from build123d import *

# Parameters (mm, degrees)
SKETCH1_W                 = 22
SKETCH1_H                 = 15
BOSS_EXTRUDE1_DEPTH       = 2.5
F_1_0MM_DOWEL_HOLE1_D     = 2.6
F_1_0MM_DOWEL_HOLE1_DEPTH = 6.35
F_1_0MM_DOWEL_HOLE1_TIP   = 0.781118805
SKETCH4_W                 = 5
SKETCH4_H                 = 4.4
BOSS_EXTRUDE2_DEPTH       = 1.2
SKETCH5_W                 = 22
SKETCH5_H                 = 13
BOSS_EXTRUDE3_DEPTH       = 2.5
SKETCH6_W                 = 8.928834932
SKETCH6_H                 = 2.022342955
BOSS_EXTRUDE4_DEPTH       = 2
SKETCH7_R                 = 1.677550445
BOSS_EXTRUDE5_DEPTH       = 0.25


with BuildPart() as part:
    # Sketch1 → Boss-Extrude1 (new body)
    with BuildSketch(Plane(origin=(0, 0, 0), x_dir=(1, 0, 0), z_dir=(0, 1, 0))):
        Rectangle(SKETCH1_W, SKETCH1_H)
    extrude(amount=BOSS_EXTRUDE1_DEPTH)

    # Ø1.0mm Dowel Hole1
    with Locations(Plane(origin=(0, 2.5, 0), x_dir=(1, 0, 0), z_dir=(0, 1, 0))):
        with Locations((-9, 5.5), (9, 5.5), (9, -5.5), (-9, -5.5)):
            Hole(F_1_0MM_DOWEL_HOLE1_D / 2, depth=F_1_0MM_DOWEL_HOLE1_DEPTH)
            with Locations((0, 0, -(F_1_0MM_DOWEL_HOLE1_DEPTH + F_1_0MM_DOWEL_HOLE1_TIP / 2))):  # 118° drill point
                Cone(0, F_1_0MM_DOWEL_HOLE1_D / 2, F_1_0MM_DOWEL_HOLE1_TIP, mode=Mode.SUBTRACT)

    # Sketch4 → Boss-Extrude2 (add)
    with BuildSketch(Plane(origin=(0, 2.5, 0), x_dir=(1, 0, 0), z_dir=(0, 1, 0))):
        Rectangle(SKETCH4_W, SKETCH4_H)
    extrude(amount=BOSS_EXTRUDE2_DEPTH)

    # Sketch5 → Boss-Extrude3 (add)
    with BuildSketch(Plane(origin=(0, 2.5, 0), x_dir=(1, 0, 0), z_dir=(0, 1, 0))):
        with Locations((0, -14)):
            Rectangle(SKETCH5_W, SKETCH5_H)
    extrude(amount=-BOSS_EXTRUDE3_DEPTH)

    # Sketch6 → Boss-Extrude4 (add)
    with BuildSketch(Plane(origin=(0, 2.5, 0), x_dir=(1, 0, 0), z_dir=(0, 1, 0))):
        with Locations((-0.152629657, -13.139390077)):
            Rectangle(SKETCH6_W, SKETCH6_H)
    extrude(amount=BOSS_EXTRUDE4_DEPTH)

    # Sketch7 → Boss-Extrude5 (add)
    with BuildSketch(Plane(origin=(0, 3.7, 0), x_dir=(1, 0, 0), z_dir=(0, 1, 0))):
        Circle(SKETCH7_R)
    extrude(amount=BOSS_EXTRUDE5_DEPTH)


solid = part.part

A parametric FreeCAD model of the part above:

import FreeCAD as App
import Part
import Sketcher

V = App.Vector

doc = App.newDocument("Part")
body = doc.addObject("PartDesign::Body", "Body")

sketch1 = body.newObject("Sketcher::SketchObject", "Sketch")
sketch1.AttachmentSupport = (doc.getObject("XZ_Plane"), [""])
sketch1.MapMode = "FlatFace"
sketch1.addGeometry([
    Part.LineSegment(V(-11, -7.5, 0), V(-11, 7.5, 0)),
    Part.LineSegment(V(-11, 7.5, 0), V(11, 7.5, 0)),
    Part.LineSegment(V(11, 7.5, 0), V(11, -7.5, 0)),
    Part.LineSegment(V(11, -7.5, 0), V(-11, -7.5, 0)),
], False)
sketch1.addConstraint([
    Sketcher.Constraint("Coincident", 0, 2, 1, 1),
    Sketcher.Constraint("Coincident", 1, 2, 2, 1),
    Sketcher.Constraint("Coincident", 2, 2, 3, 1),
    Sketcher.Constraint("Coincident", 3, 2, 0, 1),
    Sketcher.Constraint("Vertical", 0),
    Sketcher.Constraint("Horizontal", 1),
    Sketcher.Constraint("Vertical", 2),
    Sketcher.Constraint("Horizontal", 3),
    Sketcher.Constraint("Symmetric", 0, 2, 2, 2, -1, 1),
    Sketcher.Constraint("DistanceX", 1, 1, 1, 2, 22.0),
    Sketcher.Constraint("DistanceY", 0, 1, 0, 2, 15.0),
])
pad1 = body.newObject("PartDesign::Pad", "Pad")
pad1.Profile = sketch1
pad1.Length = 2.5
pad1.Reversed = True

sketch2 = body.newObject("Sketcher::SketchObject", "Sketch001")
sketch2.AttachmentSupport = (doc.getObject("XZ_Plane"), [""])
sketch2.MapMode = "FlatFace"
sketch2.AttachmentOffset = App.Placement(V(0, 0, -2.5), App.Rotation())
sketch2.addGeometry([
    Part.Circle(V(-9, -5.5, 0), V(0, 0, 1), 1.3),
    Part.Circle(V(9, -5.5, 0), V(0, 0, 1), 1.3),
    Part.Circle(V(9, 5.5, 0), V(0, 0, 1), 1.3),
    Part.Circle(V(-9, 5.5, 0), V(0, 0, 1), 1.3),
], False)
sketch2.addConstraint([
    Sketcher.Constraint("Equal", 0, 1),
    Sketcher.Constraint("Equal", 1, 2),
    Sketcher.Constraint("Equal", 2, 3),
    Sketcher.Constraint("Symmetric", 0, 3, 2, 3, -1, 1),
    Sketcher.Constraint("Symmetric", 1, 3, 3, 3, -1, 1),
    Sketcher.Constraint("Symmetric", 0, 3, 1, 3, -2),
    Sketcher.Constraint("Diameter", 0, 2.6),
    Sketcher.Constraint("DistanceX", 0, 3, -1, 1, 9.0),
    Sketcher.Constraint("DistanceY", 1, 3, 2, 3, 11.0),
])
doc.recompute()
hole = body.newObject("PartDesign::Hole", "Hole")
hole.Profile = sketch2
hole.ThreadType = "None"
hole.Diameter = 2.6
hole.DepthType = "Dimension"
hole.Depth = 6.35
hole.DrillPoint = "Angled"
hole.DrillPointAngle = 118
hole.Reversed = True

sketch3 = body.newObject("Sketcher::SketchObject", "Sketch002")
sketch3.AttachmentSupport = (doc.getObject("XZ_Plane"), [""])
sketch3.MapMode = "FlatFace"
sketch3.AttachmentOffset = App.Placement(V(0, 0, -2.5), App.Rotation())
sketch3.addGeometry([
    Part.LineSegment(V(-2.5, -2.2, 0), V(-2.5, 2.2, 0)),
    Part.LineSegment(V(-2.5, 2.2, 0), V(2.5, 2.2, 0)),
    Part.LineSegment(V(2.5, 2.2, 0), V(2.5, -2.2, 0)),
    Part.LineSegment(V(2.5, -2.2, 0), V(-2.5, -2.2, 0)),
], False)
sketch3.addConstraint([
    Sketcher.Constraint("Coincident", 0, 2, 1, 1),
    Sketcher.Constraint("Coincident", 1, 2, 2, 1),
    Sketcher.Constraint("Coincident", 2, 2, 3, 1),
    Sketcher.Constraint("Coincident", 3, 2, 0, 1),
    Sketcher.Constraint("Vertical", 0),
    Sketcher.Constraint("Horizontal", 1),
    Sketcher.Constraint("Vertical", 2),
    Sketcher.Constraint("Horizontal", 3),
    Sketcher.Constraint("Symmetric", 0, 2, 2, 2, -1, 1),
    Sketcher.Constraint("DistanceX", 1, 1, 1, 2, 5.0),
    Sketcher.Constraint("DistanceY", 0, 1, 0, 2, 4.4),
])
pad2 = body.newObject("PartDesign::Pad", "Pad001")
pad2.Profile = sketch3
pad2.Length = 1.2
pad2.Reversed = True

sketch4 = body.newObject("Sketcher::SketchObject", "Sketch003")
sketch4.AttachmentSupport = (doc.getObject("XZ_Plane"), [""])
sketch4.MapMode = "FlatFace"
sketch4.AttachmentOffset = App.Placement(V(0, 0, -2.5), App.Rotation())
sketch4.addGeometry([
    Part.LineSegment(V(-11, 7.5, 0), V(-11, 20.5, 0)),
    Part.LineSegment(V(-11, 20.5, 0), V(11, 20.5, 0)),
    Part.LineSegment(V(11, 20.5, 0), V(11, 7.5, 0)),
    Part.LineSegment(V(11, 7.5, 0), V(-11, 7.5, 0)),
], False)
sketch4.addConstraint([
    Sketcher.Constraint("Coincident", 0, 2, 1, 1),
    Sketcher.Constraint("Coincident", 1, 2, 2, 1),
    Sketcher.Constraint("Coincident", 2, 2, 3, 1),
    Sketcher.Constraint("Coincident", 3, 2, 0, 1),
    Sketcher.Constraint("Vertical", 0),
    Sketcher.Constraint("Horizontal", 1),
    Sketcher.Constraint("Vertical", 2),
    Sketcher.Constraint("Horizontal", 3),
    Sketcher.Constraint("DistanceX", 1, 1, 1, 2, 22.0),
    Sketcher.Constraint("DistanceY", 0, 1, 0, 2, 13.0),
    Sketcher.Constraint("DistanceX", 0, 2, -1, 1, 11.0),
    Sketcher.Constraint("DistanceY", -1, 1, 0, 2, 20.5),
])
pad3 = body.newObject("PartDesign::Pad", "Pad002")
pad3.Profile = sketch4
pad3.Length = 2.5

sketch5 = body.newObject("Sketcher::SketchObject", "Sketch004")
sketch5.AttachmentSupport = (doc.getObject("XZ_Plane"), [""])
sketch5.MapMode = "FlatFace"
sketch5.AttachmentOffset = App.Placement(V(0, 0, -2.5), App.Rotation())
sketch5.addGeometry([
    Part.LineSegment(V(-4.617047, 12.128219, 0), V(-4.617047, 14.150562, 0)),
    Part.LineSegment(V(-4.617047, 14.150562, 0), V(4.311788, 14.150562, 0)),
    Part.LineSegment(V(4.311788, 14.150562, 0), V(4.311788, 12.128219, 0)),
    Part.LineSegment(V(4.311788, 12.128219, 0), V(-4.617047, 12.128219, 0)),
], False)
sketch5.addConstraint([
    Sketcher.Constraint("Coincident", 0, 2, 1, 1),
    Sketcher.Constraint("Coincident", 1, 2, 2, 1),
    Sketcher.Constraint("Coincident", 2, 2, 3, 1),
    Sketcher.Constraint("Coincident", 3, 2, 0, 1),
    Sketcher.Constraint("Vertical", 0),
    Sketcher.Constraint("Horizontal", 1),
    Sketcher.Constraint("Vertical", 2),
    Sketcher.Constraint("Horizontal", 3),
    Sketcher.Constraint("DistanceX", 1, 1, 1, 2, 8.928835),
    Sketcher.Constraint("DistanceY", 0, 1, 0, 2, 2.022343),
    Sketcher.Constraint("DistanceY", -1, 1, 0, 2, 14.150562),
    Sketcher.Constraint("DistanceX", 0, 2, -1, 1, 4.617047),
])
pad4 = body.newObject("PartDesign::Pad", "Pad003")
pad4.Profile = sketch5
pad4.Length = 2
pad4.Reversed = True

sketch6 = body.newObject("Sketcher::SketchObject", "Sketch005")
sketch6.AttachmentSupport = (doc.getObject("XZ_Plane"), [""])
sketch6.MapMode = "FlatFace"
sketch6.AttachmentOffset = App.Placement(V(0, 0, -3.7), App.Rotation())
sketch6.addGeometry(Part.Circle(V(0, 0, 0), V(0, 0, 1), 1.67755), False)
sketch6.addConstraint([
    Sketcher.Constraint("Coincident", 0, 3, -1, 1),
    Sketcher.Constraint("Diameter", 0, 3.355101),
])
pad5 = body.newObject("PartDesign::Pad", "Pad004")
pad5.Profile = sketch6
pad5.Length = 0.25
pad5.Reversed = True

doc.recompute()
